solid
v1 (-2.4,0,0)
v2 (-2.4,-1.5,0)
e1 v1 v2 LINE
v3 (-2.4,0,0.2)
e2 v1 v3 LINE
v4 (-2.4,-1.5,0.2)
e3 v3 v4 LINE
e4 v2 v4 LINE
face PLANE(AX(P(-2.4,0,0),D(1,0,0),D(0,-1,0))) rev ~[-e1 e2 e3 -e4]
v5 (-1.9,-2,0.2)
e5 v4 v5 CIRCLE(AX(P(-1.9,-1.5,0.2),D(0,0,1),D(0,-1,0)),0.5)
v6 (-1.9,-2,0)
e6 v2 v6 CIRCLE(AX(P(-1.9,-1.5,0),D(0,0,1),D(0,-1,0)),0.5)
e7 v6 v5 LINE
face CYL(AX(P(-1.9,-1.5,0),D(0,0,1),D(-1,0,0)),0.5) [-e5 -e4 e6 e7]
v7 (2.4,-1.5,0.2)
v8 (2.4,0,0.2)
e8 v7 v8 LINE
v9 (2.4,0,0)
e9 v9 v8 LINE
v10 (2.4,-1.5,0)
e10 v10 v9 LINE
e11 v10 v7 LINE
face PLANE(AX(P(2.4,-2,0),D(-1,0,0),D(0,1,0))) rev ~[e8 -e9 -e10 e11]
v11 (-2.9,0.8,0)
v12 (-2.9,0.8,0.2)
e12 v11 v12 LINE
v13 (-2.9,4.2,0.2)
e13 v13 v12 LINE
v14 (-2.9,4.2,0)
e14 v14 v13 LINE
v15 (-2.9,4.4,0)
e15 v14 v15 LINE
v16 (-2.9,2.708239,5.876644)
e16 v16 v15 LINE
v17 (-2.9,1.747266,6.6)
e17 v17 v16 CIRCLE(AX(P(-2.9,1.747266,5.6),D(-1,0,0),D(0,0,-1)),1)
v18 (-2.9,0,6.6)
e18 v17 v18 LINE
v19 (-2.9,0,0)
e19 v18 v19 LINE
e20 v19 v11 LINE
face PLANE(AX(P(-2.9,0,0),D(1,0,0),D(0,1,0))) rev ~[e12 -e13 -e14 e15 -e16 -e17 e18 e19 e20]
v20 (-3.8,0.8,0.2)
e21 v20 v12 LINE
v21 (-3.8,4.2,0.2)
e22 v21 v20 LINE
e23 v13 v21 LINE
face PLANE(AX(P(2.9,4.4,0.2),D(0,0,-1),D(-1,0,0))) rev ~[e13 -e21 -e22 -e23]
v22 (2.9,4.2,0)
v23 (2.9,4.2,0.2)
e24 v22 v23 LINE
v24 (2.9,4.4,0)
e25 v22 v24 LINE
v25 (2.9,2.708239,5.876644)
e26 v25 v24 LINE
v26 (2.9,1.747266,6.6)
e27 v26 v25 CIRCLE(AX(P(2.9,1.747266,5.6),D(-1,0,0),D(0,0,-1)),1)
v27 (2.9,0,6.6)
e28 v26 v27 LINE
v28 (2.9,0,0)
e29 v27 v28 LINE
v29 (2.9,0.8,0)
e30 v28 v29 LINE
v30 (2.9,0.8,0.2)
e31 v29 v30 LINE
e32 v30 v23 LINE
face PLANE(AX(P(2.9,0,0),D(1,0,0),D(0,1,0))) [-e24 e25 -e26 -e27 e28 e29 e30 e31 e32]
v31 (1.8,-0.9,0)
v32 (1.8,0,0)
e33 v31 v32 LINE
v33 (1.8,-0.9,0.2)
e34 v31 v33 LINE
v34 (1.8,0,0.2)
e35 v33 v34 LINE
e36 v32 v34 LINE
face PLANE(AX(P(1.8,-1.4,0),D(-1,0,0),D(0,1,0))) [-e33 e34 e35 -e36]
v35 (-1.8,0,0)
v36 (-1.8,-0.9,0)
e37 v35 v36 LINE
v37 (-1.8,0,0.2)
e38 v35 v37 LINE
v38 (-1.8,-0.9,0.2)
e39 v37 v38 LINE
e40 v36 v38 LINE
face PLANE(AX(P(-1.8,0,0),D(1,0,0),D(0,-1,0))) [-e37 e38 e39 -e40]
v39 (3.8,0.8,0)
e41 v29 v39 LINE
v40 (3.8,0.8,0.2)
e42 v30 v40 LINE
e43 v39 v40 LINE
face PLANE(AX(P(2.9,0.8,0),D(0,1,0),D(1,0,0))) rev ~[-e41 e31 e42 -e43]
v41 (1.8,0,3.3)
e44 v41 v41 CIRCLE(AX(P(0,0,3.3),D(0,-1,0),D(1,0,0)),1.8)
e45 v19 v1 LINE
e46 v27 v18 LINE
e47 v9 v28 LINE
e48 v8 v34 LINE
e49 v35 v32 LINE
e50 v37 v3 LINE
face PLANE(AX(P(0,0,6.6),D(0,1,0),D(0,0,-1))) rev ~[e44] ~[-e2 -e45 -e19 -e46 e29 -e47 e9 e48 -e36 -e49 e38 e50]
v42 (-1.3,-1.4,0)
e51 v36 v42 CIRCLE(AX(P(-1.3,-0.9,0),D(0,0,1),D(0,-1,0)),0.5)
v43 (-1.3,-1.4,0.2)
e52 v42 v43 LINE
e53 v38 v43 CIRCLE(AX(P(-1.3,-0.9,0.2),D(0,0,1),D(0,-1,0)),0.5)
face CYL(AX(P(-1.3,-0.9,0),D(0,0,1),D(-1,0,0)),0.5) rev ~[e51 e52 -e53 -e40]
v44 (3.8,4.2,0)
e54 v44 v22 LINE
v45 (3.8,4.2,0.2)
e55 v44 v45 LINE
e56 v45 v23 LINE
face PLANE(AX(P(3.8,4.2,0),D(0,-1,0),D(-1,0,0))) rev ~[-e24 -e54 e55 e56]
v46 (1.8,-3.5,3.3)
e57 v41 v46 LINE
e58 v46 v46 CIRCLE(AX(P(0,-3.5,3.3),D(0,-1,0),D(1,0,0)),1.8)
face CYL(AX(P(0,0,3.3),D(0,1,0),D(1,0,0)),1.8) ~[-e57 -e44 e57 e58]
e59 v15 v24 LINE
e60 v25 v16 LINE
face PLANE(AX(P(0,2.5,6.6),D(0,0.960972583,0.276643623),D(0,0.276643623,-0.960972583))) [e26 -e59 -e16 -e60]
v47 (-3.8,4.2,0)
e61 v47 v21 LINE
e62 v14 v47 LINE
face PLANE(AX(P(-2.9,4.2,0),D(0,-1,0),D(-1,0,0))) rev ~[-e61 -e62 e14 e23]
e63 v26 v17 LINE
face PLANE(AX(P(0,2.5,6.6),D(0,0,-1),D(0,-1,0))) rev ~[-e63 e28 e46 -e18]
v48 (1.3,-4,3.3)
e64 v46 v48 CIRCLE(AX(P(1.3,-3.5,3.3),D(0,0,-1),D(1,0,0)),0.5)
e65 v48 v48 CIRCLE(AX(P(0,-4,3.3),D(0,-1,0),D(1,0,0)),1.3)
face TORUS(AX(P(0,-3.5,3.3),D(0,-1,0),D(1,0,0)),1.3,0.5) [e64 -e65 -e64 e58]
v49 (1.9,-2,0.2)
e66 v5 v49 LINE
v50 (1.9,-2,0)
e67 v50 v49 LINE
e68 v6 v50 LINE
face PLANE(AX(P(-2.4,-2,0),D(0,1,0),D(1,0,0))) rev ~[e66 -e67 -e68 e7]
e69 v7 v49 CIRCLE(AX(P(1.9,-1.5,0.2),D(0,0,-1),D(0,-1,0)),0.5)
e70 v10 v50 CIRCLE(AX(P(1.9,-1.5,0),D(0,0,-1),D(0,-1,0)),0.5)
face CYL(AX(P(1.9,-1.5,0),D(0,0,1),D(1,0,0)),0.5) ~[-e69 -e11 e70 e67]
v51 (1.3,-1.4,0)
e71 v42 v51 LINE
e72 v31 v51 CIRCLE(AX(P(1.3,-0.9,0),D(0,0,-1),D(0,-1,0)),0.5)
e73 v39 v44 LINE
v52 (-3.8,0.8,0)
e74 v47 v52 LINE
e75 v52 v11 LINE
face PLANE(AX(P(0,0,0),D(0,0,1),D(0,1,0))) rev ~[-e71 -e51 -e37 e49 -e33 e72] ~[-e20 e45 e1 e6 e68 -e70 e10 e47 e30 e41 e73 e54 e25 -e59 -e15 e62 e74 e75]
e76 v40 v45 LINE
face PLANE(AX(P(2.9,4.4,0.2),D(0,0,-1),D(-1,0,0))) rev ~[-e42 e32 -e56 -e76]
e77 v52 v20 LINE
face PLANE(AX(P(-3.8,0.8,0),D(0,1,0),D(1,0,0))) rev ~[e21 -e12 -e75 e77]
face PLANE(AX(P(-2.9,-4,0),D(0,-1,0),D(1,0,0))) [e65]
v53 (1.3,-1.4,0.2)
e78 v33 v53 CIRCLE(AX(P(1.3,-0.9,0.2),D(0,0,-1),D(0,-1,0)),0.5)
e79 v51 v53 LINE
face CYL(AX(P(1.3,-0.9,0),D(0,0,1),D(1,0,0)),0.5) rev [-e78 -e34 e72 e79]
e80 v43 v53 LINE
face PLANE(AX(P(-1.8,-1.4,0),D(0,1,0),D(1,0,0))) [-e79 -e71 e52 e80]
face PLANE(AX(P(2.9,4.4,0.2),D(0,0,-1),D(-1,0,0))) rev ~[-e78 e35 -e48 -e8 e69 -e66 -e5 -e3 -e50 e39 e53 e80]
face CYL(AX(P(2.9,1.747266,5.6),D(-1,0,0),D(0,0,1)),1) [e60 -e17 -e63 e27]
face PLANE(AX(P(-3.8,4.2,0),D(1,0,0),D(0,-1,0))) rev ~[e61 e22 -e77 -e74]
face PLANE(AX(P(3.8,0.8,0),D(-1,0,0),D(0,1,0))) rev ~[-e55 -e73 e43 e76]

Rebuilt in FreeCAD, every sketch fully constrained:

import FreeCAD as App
import Part
import Sketcher
from FreeCAD import Vector


def edges_at(feature, points):
    """Names of the edges that pass closest to the given points."""
    edges = feature.Shape.Edges
    near = lambda p: min(range(len(edges)), key=lambda i: edges[i].distToShape(Part.Vertex(*p))[0])
    return sorted({f"Edge{near(p) + 1}" for p in points})


def add_polygon(sketch, points):
    """Adds a closed chain of lines whose ends are joined by coincident constraints."""
    first, n = sketch.GeometryCount, len(points)
    for a, b in zip(points, points[1:] + points[:1]):
        sketch.addGeometry(Part.LineSegment(App.Vector(*a, 0), App.Vector(*b, 0)), False)
    for i in range(n):
        sketch.addConstraint(Sketcher.Constraint("Coincident", first + i, 2, first + (i + 1) % n, 1))

doc = App.newDocument("Part")
body = doc.addObject("PartDesign::Body", "Body")

# Sketch on YZ plane
sketch1 = body.newObject("Sketcher::SketchObject", "Sketch")
sketch1.AttachmentSupport = (doc.getObject("YZ_Plane"), [""])
sketch1.MapMode = "FlatFace"
add_polygon(sketch1, [(0, 6.6), (0, 0), (4.4, 0), (2.5, 6.6)])  # lines 0-3
sketch1.addConstraint([
    Sketcher.Constraint("Vertical", 0),
    Sketcher.Constraint("Horizontal", 1),
    Sketcher.Constraint("Horizontal", 3),
    Sketcher.Constraint("Coincident", 0, 2, -1, 1),
    Sketcher.Constraint("DistanceX", 1, 1, 1, 2, 4.4),
    Sketcher.Constraint("DistanceX", 3, 2, 3, 1, 2.5),
    Sketcher.Constraint("DistanceY", 0, 2, 0, 1, 6.6),
])
pad1 = body.newObject("PartDesign::Pad", "Pad")
pad1.Profile = sketch1
pad1.Length = 5.8
pad1.Midplane = True

# Sketch on XZ plane
sketch2 = body.newObject("Sketcher::SketchObject", "Sketch001")
sketch2.AttachmentSupport = (doc.getObject("XZ_Plane"), [""])
sketch2.MapMode = "FlatFace"
sketch2.addGeometry(Part.Circle(Vector(0, 3.3, 0), Vector(0, 0, 1), 1.8), False)
sketch2.addConstraint([
    Sketcher.Constraint("PointOnObject", 0, 3, -2),
    Sketcher.Constraint("Diameter", 0, 3.6),
    Sketcher.Constraint("DistanceY", -1, 1, 0, 3, 3.3),
])
pad2 = body.newObject("PartDesign::Pad", "Pad001")
pad2.Profile = sketch2
pad2.Length = 4

# Sketch on XY plane
sketch3 = body.newObject("Sketcher::SketchObject", "Sketch002")
sketch3.AttachmentSupport = (doc.getObject("XY_Plane"), [""])
sketch3.MapMode = "FlatFace"
add_polygon(sketch3, [(-3.8, 4.2), (-2.9, 4.2), (-2.9, 0.8), (-3.8, 0.8)])  # lines 0-3
add_polygon(sketch3, [(2.9, 0.8), (2.9, 4.2), (3.8, 4.2), (3.8, 0.8)])  # lines 4-7
add_polygon(sketch3, [(1.8, 0), (2.4, 0), (2.4, -2), (-2.4, -2), (-2.4, 0), (-1.8, 0), (-1.8, -1.4), (1.8, -1.4)])  # lines 8-15
sketch3.addConstraint([
    Sketcher.Constraint("Horizontal", 0),
    Sketcher.Constraint("Vertical", 1),
    Sketcher.Constraint("Horizontal", 2),
    Sketcher.Constraint("Vertical", 3),
    Sketcher.Constraint("Vertical", 4),
    Sketcher.Constraint("Horizontal", 5),
    Sketcher.Constraint("Vertical", 6),
    Sketcher.Constraint("Horizontal", 7),
    Sketcher.Constraint("Horizontal", 8),
    Sketcher.Constraint("Vertical", 9),
    Sketcher.Constraint("Horizontal", 10),
    Sketcher.Constraint("Vertical", 11),
    Sketcher.Constraint("Horizontal", 12),
    Sketcher.Constraint("Vertical", 13),
    Sketcher.Constraint("Horizontal", 14),
    Sketcher.Constraint("Vertical", 15),
    Sketcher.Constraint("Symmetric", 8, 2, 11, 2, -1, 1),
    Sketcher.Constraint("Symmetric", 0, 2, 4, 2, -2),
    Sketcher.Constraint("Symmetric", 2, 2, 6, 2, -2),
    Sketcher.Constraint("Symmetric", 12, 2, 15, 2, -2),
    Sketcher.Constraint("DistanceY", 9, 2, 9, 1, 2.0),
    Sketcher.Constraint("DistanceX", 0, 1, 0, 2, 0.9),
    Sketcher.Constraint("DistanceX", 8, 1, 8, 2, 0.6),
    Sketcher.Constraint("DistanceX", 10, 2, 10, 1, 4.8),
    Sketcher.Constraint("DistanceY", 1, 2, 1, 1, 3.4),
    Sketcher.Constraint("DistanceX", 2, 2, 12, 2, 2.0),
    Sketcher.Constraint("DistanceY", -1, 1, 1, 2, 0.8),
    Sketcher.Constraint("DistanceY", 10, 2, 13, 2, 0.6),
])
pad3 = body.newObject("PartDesign::Pad", "Pad002")
pad3.Profile = sketch3
pad3.Length = 0.2
doc.recompute()

fillet = body.newObject("PartDesign::Fillet", "Fillet")
fillet.Base = (pad3, edges_at(pad3, [(0, 2.5, 6.6)]))
fillet.Radius = 1
doc.recompute()

fillet2 = body.newObject("PartDesign::Fillet", "Fillet001")
fillet2.Base = (fillet, edges_at(fillet, [(-1.8, -4, 3.3)]))
fillet2.Radius = 0.5
doc.recompute()

fillet3 = body.newObject("PartDesign::Fillet", "Fillet002")
fillet3.Base = (fillet2, edges_at(fillet2, [
    (-2.4, -2, 0.1),
    (2.4, -2, 0.1),
    (1.8, -1.4, 0.1),
    (-1.8, -1.4, 0.1),
]))
fillet3.Radius = 0.5

doc.recompute()
